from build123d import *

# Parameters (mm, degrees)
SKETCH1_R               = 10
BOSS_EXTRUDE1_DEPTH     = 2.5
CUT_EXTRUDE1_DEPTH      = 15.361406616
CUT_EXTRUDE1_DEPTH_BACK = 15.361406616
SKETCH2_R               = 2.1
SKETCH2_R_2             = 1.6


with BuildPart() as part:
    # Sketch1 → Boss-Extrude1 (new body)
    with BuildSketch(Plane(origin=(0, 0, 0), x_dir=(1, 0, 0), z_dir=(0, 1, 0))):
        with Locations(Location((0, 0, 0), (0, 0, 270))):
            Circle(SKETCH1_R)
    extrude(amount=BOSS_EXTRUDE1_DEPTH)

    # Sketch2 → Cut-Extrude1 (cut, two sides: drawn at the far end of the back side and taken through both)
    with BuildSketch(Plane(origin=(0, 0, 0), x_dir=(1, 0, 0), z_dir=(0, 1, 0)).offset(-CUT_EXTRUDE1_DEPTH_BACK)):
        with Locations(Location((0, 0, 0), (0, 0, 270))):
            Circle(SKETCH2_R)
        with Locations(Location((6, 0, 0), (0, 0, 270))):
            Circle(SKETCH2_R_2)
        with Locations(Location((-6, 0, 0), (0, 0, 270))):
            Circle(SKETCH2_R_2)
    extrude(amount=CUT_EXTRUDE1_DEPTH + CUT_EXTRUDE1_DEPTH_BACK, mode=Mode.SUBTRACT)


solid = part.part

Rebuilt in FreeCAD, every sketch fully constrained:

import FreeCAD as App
import Part
import Sketcher

V = App.Vector
Q = App.Units.Quantity

doc = App.newDocument("Part")
params = doc.addObject("Spreadsheet::Sheet", "Params")
for row, (alias, value) in enumerate([
    ("sketch1_diameter", "20 mm"),
    ("pad1_length", "2.5 mm"),
    ("sketch2_diameter", "4.2 mm"),
    ("sketch2_diameter2", "3.2 mm"),
], start=1):
    params.set(f"A{row}", alias)
    params.set(f"B{row}", "=" + value)
    params.setAlias(f"B{row}", alias)

body = doc.addObject("PartDesign::Body", "Body")

sketch1 = body.newObject("Sketcher::SketchObject", "Sketch")
sketch1.AttachmentSupport = (doc.getObject("XZ_Plane"), [""])
sketch1.MapMode = "FlatFace"
sketch1.addGeometry(Part.Circle(V(0, 0, 0), V(0, 0, 1), 10), False)
sketch1.addConstraint([
    Sketcher.Constraint("Coincident", 0, 3, -1, 1),
    Sketcher.Constraint("Diameter", 0, Q("20 mm")),
])
sketch1.setExpression("Constraints[1]", "Params.sketch1_diameter")
pad1 = body.newObject("PartDesign::Pad", "Pad")
pad1.Profile = sketch1
pad1.setExpression("Length", "Params.pad1_length")
pad1.Reversed = True

sketch2 = body.newObject("Sketcher::SketchObject", "Sketch001")
sketch2.AttachmentSupport = (doc.getObject("XZ_Plane"), [""])
sketch2.MapMode = "FlatFace"
sketch2.addGeometry([
    Part.Circle(V(0, 0, 0), V(0, 0, 1), 2.1),
    Part.Circle(V(6, 0, 0), V(0, 0, 1), 1.6),
    Part.Circle(V(-6, 0, 0), V(0, 0, 1), 1.6),
], False)
sketch2.addConstraint([
    Sketcher.Constraint("Coincident", 0, 3, -1, 1),
    Sketcher.Constraint("Equal", 1, 2),
    Sketcher.Constraint("Symmetric", 1, 3, 2, 3, -1, 1),
    Sketcher.Constraint("PointOnObject", 1, 3, -1),
    Sketcher.Constraint("Diameter", 0, Q("4.2 mm")),
    Sketcher.Constraint("Diameter", 1, Q("3.2 mm")),
    Sketcher.Constraint("DistanceX", -1, 1, 1, 3, Q("6 mm")),
])
sketch2.setExpression("Constraints[4]", "Params.sketch2_diameter")
sketch2.setExpression("Constraints[5]", "Params.sketch2_diameter2")
pocket1 = body.newObject("PartDesign::Pocket", "Pocket")
pocket1.Profile = sketch2
pocket1.Type = "ThroughAll"
pocket1.Midplane = True

doc.recompute()
